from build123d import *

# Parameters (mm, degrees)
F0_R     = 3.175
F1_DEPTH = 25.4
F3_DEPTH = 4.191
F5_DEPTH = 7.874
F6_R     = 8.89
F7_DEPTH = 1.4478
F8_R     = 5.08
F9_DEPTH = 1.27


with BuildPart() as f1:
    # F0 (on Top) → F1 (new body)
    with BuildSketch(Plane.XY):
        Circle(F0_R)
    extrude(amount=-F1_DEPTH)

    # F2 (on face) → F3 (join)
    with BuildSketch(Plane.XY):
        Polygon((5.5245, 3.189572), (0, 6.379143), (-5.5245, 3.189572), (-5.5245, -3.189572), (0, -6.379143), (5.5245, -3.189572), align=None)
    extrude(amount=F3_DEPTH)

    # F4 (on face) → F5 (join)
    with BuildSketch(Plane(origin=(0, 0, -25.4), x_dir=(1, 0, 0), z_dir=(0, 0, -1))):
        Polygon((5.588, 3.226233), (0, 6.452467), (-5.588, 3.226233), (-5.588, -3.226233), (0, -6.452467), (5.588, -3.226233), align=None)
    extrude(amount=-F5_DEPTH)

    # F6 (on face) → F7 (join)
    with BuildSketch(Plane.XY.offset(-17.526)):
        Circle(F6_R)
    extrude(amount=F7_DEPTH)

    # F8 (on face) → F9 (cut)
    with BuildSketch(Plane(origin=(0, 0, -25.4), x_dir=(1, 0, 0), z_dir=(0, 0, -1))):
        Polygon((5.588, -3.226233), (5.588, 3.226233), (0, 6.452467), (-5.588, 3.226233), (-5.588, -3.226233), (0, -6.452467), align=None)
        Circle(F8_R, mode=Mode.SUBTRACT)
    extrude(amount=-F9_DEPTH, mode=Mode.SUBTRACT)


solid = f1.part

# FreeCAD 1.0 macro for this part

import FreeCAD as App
import Part
import Sketcher
Q = App.Units.Quantity


def add_polygon(sketch, points):
    """Adds a closed chain of lines whose ends are joined by coincident constraints."""
    first, n = sketch.GeometryCount, len(points)
    for a, b in zip(points, points[1:] + points[:1]):
        sketch.addGeometry(Part.LineSegment(App.Vector(*a, 0), App.Vector(*b, 0)), False)
    for i in range(n):
        sketch.addConstraint(Sketcher.Constraint("Coincident", first + i, 2, first + (i + 1) % n, 1))

doc = App.newDocument("Part")
body = doc.addObject("PartDesign::Body", "Body")

# Sketch on XY plane
sketch1 = doc.addObject("Sketcher::SketchObject", "Sketch")
body.addObject(sketch1)
sketch1.AttachmentSupport = (doc.XY_Plane, [""])
sketch1.MapMode = "FlatFace"
sketch1.addGeometry(Part.Circle(App.Vector(0, 0, 0), App.Vector(0, 0, 1), 3.175), False)
sketch1.addConstraint([
    Sketcher.Constraint("Coincident", 0, 3, -1, 1),
    Sketcher.Constraint("Diameter", 0, Q("0.25 in")),
])
pad1 = doc.addObject("PartDesign::Pad", "Pad")
body.addObject(pad1)
pad1.Profile = sketch1
pad1.Length = Q("1 in")
pad1.Reversed = True

# Sketch on XY plane
sketch2 = doc.addObject("Sketcher::SketchObject", "Sketch001")
body.addObject(sketch2)
sketch2.AttachmentSupport = (doc.XY_Plane, [""])
sketch2.MapMode = "FlatFace"
add_polygon(sketch2, [(5.5245, 3.189572), (0, 6.379143), (-5.5245, 3.189572), (-5.5245, -3.189572), (0, -6.379143), (5.5245, -3.189572)])  # lines 0-5
sketch2.addConstraint([
    Sketcher.Constraint("Vertical", 2),
    Sketcher.Constraint("Vertical", 5),
    Sketcher.Constraint("Symmetric", 0, 2, 3, 2, -1, 1),
    Sketcher.Constraint("Symmetric", 1, 2, 4, 2, -1, 1),
    Sketcher.Constraint("PointOnObject", 0, 2, -2),
    Sketcher.Constraint("Parallel", 0, 3),
    Sketcher.Constraint("Horizontal", 2, 2, 4, 2),
    Sketcher.Constraint("Angle", 0, Q("150.000004 deg")),
    Sketcher.Constraint("DistanceX", 2, 2, 4, 2, Q("0.435 in")),
    Sketcher.Constraint("DistanceY", 2, 2, 2, 1, 6.379144),
])
pad2 = doc.addObject("PartDesign::Pad", "Pad001")
body.addObject(pad2)
pad2.Profile = sketch2
pad2.Length = Q("0.165 in")

# Sketch on XY plane
sketch3 = doc.addObject("Sketcher::SketchObject", "Sketch002")
body.addObject(sketch3)
sketch3.AttachmentSupport = (doc.XY_Plane, [""])
sketch3.MapMode = "FlatFace"
sketch3.AttachmentOffset = App.Placement(App.Vector(0, 0, -1 * 25.4), App.Rotation())
add_polygon(sketch3, [(5.588, -3.226233), (0, -6.452467), (-5.588, -3.226233), (-5.588, 3.226233), (0, 6.452467), (5.588, 3.226233)])  # lines 0-5
sketch3.addConstraint([
    Sketcher.Constraint("Vertical", 2),
    Sketcher.Constraint("Vertical", 5),
    Sketcher.Constraint("Symmetric", 0, 2, 3, 2, -1, 1),
    Sketcher.Constraint("Symmetric", 1, 2, 4, 2, -1, 1),
    Sketcher.Constraint("PointOnObject", 0, 2, -2),
    Sketcher.Constraint("Parallel", 0, 3),
    Sketcher.Constraint("Horizontal", 2, 2, 4, 2),
    Sketcher.Constraint("Angle", 0, Q("-149.999995 deg")),
    Sketcher.Constraint("DistanceX", 1, 2, -1, 1, Q("0.22 in")),
    Sketcher.Constraint("DistanceY", 0, 2, 2, 2, 9.6787),
])
pad3 = doc.addObject("PartDesign::Pad", "Pad002")
body.addObject(pad3)
pad3.Profile = sketch3
pad3.Length = Q("0.31 in")

# Sketch on XY plane
sketch4 = doc.addObject("Sketcher::SketchObject", "Sketch003")
body.addObject(sketch4)
sketch4.AttachmentSupport = (doc.XY_Plane, [""])
sketch4.MapMode = "FlatFace"
sketch4.AttachmentOffset = App.Placement(App.Vector(0, 0, -0.69 * 25.4), App.Rotation())
sketch4.addGeometry(Part.Circle(App.Vector(0, 0, 0), App.Vector(0, 0, 1), 8.89), False)
sketch4.addConstraint([
    Sketcher.Constraint("Coincident", 0, 3, -1, 1),
    Sketcher.Constraint("Diameter", 0, Q("0.7 in")),
])
pad4 = doc.addObject("PartDesign::Pad", "Pad003")
body.addObject(pad4)
pad4.Profile = sketch4
pad4.Length = Q("0.057 in")

# Sketch on XY plane
sketch5 = doc.addObject("Sketcher::SketchObject", "Sketch004")
body.addObject(sketch5)
sketch5.AttachmentSupport = (doc.XY_Plane, [""])
sketch5.MapMode = "FlatFace"
sketch5.AttachmentOffset = App.Placement(App.Vector(0, 0, -1 * 25.4), App.Rotation())
add_polygon(sketch5, [(5.588, 3.226233), (5.588, -3.226233), (0, -6.452467), (-5.588, -3.226233), (-5.588, 3.226233), (0, 6.452467)])  # lines 0-5
sketch5.addGeometry(Part.Circle(App.Vector(0, 0, 0), App.Vector(0, 0, 1), 5.08), False)  # 6
sketch5.addConstraint([
    Sketcher.Constraint("Vertical", 0),
    Sketcher.Constraint("Vertical", 3),
    Sketcher.Constraint("Coincident", 6, 3, -1, 1),
    Sketcher.Constraint("Symmetric", 0, 2, 3, 2, -1, 1),
    Sketcher.Constraint("Symmetric", 1, 2, 4, 2, -1, 1),
    Sketcher.Constraint("PointOnObject", 1, 2, -2),
    Sketcher.Constraint("Parallel", 2, 5),
    Sketcher.Constraint("Horizontal", 0, 2, 2, 2),
    Sketcher.Constraint("Diameter", 6, Q("0.4 in")),
    Sketcher.Constraint("Angle", 1, Q("-149.999995 deg")),
    Sketcher.Constraint("DistanceX", -1, 1, 0, 2, Q("0.22 in")),
    Sketcher.Constraint("DistanceY", 1, 2, 3, 2, 9.6787),
])
pocket1 = doc.addObject("PartDesign::Pocket", "Pocket")
body.addObject(pocket1)
pocket1.Profile = sketch5
pocket1.Length = Q("0.05 in")
pocket1.Reversed = True

doc.recompute()
